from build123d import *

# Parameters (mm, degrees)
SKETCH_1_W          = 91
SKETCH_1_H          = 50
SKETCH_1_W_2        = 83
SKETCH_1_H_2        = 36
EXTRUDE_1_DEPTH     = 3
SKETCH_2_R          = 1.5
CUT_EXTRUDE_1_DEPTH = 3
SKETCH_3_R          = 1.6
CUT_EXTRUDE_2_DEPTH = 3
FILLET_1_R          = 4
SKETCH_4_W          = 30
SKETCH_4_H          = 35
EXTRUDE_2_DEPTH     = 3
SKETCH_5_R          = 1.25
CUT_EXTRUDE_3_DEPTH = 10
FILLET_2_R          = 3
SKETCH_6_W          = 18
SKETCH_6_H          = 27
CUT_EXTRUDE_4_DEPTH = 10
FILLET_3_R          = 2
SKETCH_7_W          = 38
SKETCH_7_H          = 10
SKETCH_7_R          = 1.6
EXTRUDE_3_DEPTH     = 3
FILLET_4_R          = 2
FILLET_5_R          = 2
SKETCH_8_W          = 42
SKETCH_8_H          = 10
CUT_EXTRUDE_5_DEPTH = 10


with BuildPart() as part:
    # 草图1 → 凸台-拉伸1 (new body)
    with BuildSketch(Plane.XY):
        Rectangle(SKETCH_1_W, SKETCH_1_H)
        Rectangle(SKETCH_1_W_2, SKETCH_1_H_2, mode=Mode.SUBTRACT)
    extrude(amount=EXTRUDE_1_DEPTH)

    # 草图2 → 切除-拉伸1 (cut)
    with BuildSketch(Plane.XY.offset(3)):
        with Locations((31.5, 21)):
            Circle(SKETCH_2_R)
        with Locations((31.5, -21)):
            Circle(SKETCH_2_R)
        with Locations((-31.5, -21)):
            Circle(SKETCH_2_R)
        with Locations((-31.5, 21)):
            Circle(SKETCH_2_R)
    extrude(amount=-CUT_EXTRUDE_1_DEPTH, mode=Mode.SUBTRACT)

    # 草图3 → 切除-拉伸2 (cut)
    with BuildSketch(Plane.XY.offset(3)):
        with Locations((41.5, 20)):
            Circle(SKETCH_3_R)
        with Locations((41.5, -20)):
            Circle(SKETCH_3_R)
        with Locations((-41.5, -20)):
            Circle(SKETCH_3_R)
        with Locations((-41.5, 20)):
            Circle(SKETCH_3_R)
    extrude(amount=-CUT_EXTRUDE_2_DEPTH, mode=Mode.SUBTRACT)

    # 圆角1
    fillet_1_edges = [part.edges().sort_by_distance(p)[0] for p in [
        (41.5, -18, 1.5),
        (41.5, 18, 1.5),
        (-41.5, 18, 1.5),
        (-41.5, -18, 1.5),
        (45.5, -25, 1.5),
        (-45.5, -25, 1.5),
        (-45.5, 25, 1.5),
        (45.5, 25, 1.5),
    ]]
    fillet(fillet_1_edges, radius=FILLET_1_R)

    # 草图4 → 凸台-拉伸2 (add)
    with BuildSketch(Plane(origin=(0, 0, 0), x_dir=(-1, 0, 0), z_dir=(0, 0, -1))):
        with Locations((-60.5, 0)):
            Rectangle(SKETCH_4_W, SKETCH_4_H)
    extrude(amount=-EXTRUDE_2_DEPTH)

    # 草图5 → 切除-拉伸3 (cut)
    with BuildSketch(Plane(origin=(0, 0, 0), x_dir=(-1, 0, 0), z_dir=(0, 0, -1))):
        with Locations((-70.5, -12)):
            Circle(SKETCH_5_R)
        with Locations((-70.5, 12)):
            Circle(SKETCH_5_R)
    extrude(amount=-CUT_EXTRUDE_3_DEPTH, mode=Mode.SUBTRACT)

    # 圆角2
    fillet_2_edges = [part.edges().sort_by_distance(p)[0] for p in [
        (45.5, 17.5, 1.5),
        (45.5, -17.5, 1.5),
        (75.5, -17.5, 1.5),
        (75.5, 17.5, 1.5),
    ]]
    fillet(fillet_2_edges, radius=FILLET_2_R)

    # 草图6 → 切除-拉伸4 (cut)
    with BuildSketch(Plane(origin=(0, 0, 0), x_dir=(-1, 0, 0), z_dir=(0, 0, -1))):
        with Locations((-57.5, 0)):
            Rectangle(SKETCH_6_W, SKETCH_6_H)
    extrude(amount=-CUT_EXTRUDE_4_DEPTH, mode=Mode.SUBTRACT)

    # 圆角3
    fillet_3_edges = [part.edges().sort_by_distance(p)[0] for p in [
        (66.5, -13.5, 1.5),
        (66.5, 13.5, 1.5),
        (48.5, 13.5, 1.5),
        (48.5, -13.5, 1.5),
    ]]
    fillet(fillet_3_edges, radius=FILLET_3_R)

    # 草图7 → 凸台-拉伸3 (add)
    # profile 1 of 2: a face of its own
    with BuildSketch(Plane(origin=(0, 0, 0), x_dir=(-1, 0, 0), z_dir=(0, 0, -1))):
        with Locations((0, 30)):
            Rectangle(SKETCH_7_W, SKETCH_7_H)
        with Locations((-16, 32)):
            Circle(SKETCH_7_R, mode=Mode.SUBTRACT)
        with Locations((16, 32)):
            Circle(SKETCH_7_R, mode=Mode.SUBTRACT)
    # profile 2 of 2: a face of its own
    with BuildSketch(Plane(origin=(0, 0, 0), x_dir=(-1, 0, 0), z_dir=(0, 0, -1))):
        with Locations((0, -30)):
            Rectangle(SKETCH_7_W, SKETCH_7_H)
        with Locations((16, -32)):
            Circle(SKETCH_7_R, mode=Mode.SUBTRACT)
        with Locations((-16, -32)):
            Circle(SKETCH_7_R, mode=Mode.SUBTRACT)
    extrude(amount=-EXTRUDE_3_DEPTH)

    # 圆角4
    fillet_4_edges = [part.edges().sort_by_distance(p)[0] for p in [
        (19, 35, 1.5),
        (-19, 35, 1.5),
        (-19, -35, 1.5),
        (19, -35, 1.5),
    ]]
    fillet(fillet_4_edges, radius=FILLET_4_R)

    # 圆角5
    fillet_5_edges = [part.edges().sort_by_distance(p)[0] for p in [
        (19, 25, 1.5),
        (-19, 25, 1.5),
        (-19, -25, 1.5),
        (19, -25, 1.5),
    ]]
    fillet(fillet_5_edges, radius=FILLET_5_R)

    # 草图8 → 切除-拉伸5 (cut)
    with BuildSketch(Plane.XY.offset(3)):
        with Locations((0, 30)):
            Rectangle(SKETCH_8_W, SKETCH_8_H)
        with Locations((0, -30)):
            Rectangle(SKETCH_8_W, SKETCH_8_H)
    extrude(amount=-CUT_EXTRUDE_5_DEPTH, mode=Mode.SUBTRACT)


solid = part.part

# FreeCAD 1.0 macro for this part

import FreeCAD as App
import Part
import Sketcher
from FreeCAD import Vector


def edges_at(feature, points):
    """Names of the edges that pass closest to the given points."""
    edges = feature.Shape.Edges
    near = lambda p: min(range(len(edges)), key=lambda i: edges[i].distToShape(Part.Vertex(*p))[0])
    return sorted({f"Edge{near(p) + 1}" for p in points})

doc = App.newDocument("Part")
body = doc.addObject("PartDesign::Body", "Body")

sketch1 = body.newObject("Sketcher::SketchObject", "Sketch")
sketch1.AttachmentSupport = (doc.getObject("XY_Plane"), [""])
sketch1.MapMode = "FlatFace"
sketch1.addGeometry(Part.LineSegment(Vector(-45.5, 25, 0), Vector(-45.5, -25, 0)), False)
sketch1.addGeometry(Part.LineSegment(Vector(-45.5, -25, 0), Vector(45.5, -25, 0)), False)
sketch1.addGeometry(Part.LineSegment(Vector(45.5, -25, 0), Vector(45.5, 25, 0)), False)
sketch1.addGeometry(Part.LineSegment(Vector(45.5, 25, 0), Vector(-45.5, 25, 0)), False)
sketch1.addGeometry(Part.LineSegment(Vector(41.5, -18, 0), Vector(-41.5, -18, 0)), False)
sketch1.addGeometry(Part.LineSegment(Vector(-41.5, -18, 0), Vector(-41.5, 18, 0)), False)
sketch1.addGeometry(Part.LineSegment(Vector(-41.5, 18, 0), Vector(41.5, 18, 0)), False)
sketch1.addGeometry(Part.LineSegment(Vector(41.5, 18, 0), Vector(41.5, -18, 0)), False)
sketch1.addConstraint(Sketcher.Constraint("Coincident", 0, 2, 1, 1))
sketch1.addConstraint(Sketcher.Constraint("Coincident", 1, 2, 2, 1))
sketch1.addConstraint(Sketcher.Constraint("Coincident", 2, 2, 3, 1))
sketch1.addConstraint(Sketcher.Constraint("Coincident", 3, 2, 0, 1))
sketch1.addConstraint(Sketcher.Constraint("Coincident", 4, 2, 5, 1))
sketch1.addConstraint(Sketcher.Constraint("Coincident", 5, 2, 6, 1))
sketch1.addConstraint(Sketcher.Constraint("Coincident", 6, 2, 7, 1))
sketch1.addConstraint(Sketcher.Constraint("Coincident", 7, 2, 4, 1))
sketch1.addConstraint(Sketcher.Constraint("Vertical", 0))
sketch1.addConstraint(Sketcher.Constraint("Horizontal", 1))
sketch1.addConstraint(Sketcher.Constraint("Vertical", 2))
sketch1.addConstraint(Sketcher.Constraint("Horizontal", 3))
sketch1.addConstraint(Sketcher.Constraint("Horizontal", 4))
sketch1.addConstraint(Sketcher.Constraint("Vertical", 5))
sketch1.addConstraint(Sketcher.Constraint("Horizontal", 6))
sketch1.addConstraint(Sketcher.Constraint("Vertical", 7))
sketch1.addConstraint(Sketcher.Constraint("Symmetric", 0, 2, 2, 2, -1, 1))
sketch1.addConstraint(Sketcher.Constraint("Symmetric", 4, 2, 6, 2, -1, 1))
sketch1.addConstraint(Sketcher.Constraint("DistanceX", 1, 1, 1, 2, 91.0))
sketch1.addConstraint(Sketcher.Constraint("DistanceX", 4, 2, 4, 1, 83.0))
sketch1.addConstraint(Sketcher.Constraint("DistanceY", 0, 2, 0, 1, 50.0))
sketch1.addConstraint(Sketcher.Constraint("DistanceY", 5, 1, 5, 2, 36.0))
pad1 = body.newObject("PartDesign::Pad", "Pad")
pad1.Profile = sketch1
pad1.Length = 3

sketch2 = body.newObject("Sketcher::SketchObject", "Sketch001")
sketch2.AttachmentSupport = (doc.getObject("XY_Plane"), [""])
sketch2.MapMode = "FlatFace"
sketch2.AttachmentOffset = App.Placement(Vector(0, 0, 3), App.Rotation())
sketch2.addGeometry(Part.Circle(Vector(31.5, 21, 0), Vector(0, 0, 1), 1.5), False)
sketch2.addGeometry(Part.Circle(Vector(31.5, -21, 0), Vector(0, 0, 1), 1.5), False)
sketch2.addGeometry(Part.Circle(Vector(-31.5, -21, 0), Vector(0, 0, 1), 1.5), False)
sketch2.addGeometry(Part.Circle(Vector(-31.5, 21, 0), Vector(0, 0, 1), 1.5), False)
sketch2.addConstraint(Sketcher.Constraint("Equal", 0, 1))
sketch2.addConstraint(Sketcher.Constraint("Equal", 1, 2))
sketch2.addConstraint(Sketcher.Constraint("Equal", 2, 3))
sketch2.addConstraint(Sketcher.Constraint("Symmetric", 0, 3, 2, 3, -1, 1))
sketch2.addConstraint(Sketcher.Constraint("Symmetric", 1, 3, 3, 3, -1, 1))
sketch2.addConstraint(Sketcher.Constraint("Symmetric", 1, 3, 2, 3, -2))
sketch2.addConstraint(Sketcher.Constraint("Diameter", 0, 3.0))
sketch2.addConstraint(Sketcher.Constraint("DistanceY", -1, 1, 0, 3, 21.0))
sketch2.addConstraint(Sketcher.Constraint("DistanceX", 2, 3, 1, 3, 63.0))
pocket1 = body.newObject("PartDesign::Pocket", "Pocket")
pocket1.Profile = sketch2
pocket1.Length = 3

sketch3 = body.newObject("Sketcher::SketchObject", "Sketch002")
sketch3.AttachmentSupport = (doc.getObject("XY_Plane"), [""])
sketch3.MapMode = "FlatFace"
sketch3.AttachmentOffset = App.Placement(Vector(0, 0, 3), App.Rotation())
sketch3.addGeometry(Part.Circle(Vector(41.5, 20, 0), Vector(0, 0, 1), 1.6), False)
sketch3.addGeometry(Part.Circle(Vector(41.5, -20, 0), Vector(0, 0, 1), 1.6), False)
sketch3.addGeometry(Part.Circle(Vector(-41.5, -20, 0), Vector(0, 0, 1), 1.6), False)
sketch3.addGeometry(Part.Circle(Vector(-41.5, 20, 0), Vector(0, 0, 1), 1.6), False)
sketch3.addConstraint(Sketcher.Constraint("Equal", 0, 1))
sketch3.addConstraint(Sketcher.Constraint("Equal", 1, 2))
sketch3.addConstraint(Sketcher.Constraint("Equal", 2, 3))
sketch3.addConstraint(Sketcher.Constraint("Symmetric", 0, 3, 2, 3, -1, 1))
sketch3.addConstraint(Sketcher.Constraint("Symmetric", 1, 3, 3, 3, -1, 1))
sketch3.addConstraint(Sketcher.Constraint("Symmetric", 1, 3, 2, 3, -2))
sketch3.addConstraint(Sketcher.Constraint("Diameter", 0, 3.2))
sketch3.addConstraint(Sketcher.Constraint("DistanceY", -1, 1, 0, 3, 20.0))
sketch3.addConstraint(Sketcher.Constraint("DistanceX", 2, 3, 1, 3, 83.0))
pocket2 = body.newObject("PartDesign::Pocket", "Pocket001")
pocket2.Profile = sketch3
pocket2.Length = 3
doc.recompute()

fillet = body.newObject("PartDesign::Fillet", "Fillet")
fillet.Base = (pocket2, edges_at(pocket2, [
    (41.5, -18, 1.5),
    (41.5, 18, 1.5),
    (-41.5, 18, 1.5),
    (-41.5, -18, 1.5),
    (45.5, -25, 1.5),
    (-45.5, -25, 1.5),
    (-45.5, 25, 1.5),
    (45.5, 25, 1.5),
]))
fillet.Radius = 4

sketch4 = body.newObject("Sketcher::SketchObject", "Sketch003")
sketch4.AttachmentSupport = (doc.getObject("XY_Plane"), [""])
sketch4.MapMode = "FlatFace"
sketch4.addGeometry(Part.LineSegment(Vector(75.5, 17.5, 0), Vector(75.5, -17.5, 0)), False)
sketch4.addGeometry(Part.LineSegment(Vector(75.5, -17.5, 0), Vector(45.5, -17.5, 0)), False)
sketch4.addGeometry(Part.LineSegment(Vector(45.5, -17.5, 0), Vector(45.5, 17.5, 0)), False)
sketch4.addGeometry(Part.LineSegment(Vector(45.5, 17.5, 0), Vector(75.5, 17.5, 0)), False)
sketch4.addConstraint(Sketcher.Constraint("Coincident", 0, 2, 1, 1))
sketch4.addConstraint(Sketcher.Constraint("Coincident", 1, 2, 2, 1))
sketch4.addConstraint(Sketcher.Constraint("Coincident", 2, 2, 3, 1))
sketch4.addConstraint(Sketcher.Constraint("Coincident", 3, 2, 0, 1))
sketch4.addConstraint(Sketcher.Constraint("Vertical", 0))
sketch4.addConstraint(Sketcher.Constraint("Horizontal", 1))
sketch4.addConstraint(Sketcher.Constraint("Vertical", 2))
sketch4.addConstraint(Sketcher.Constraint("Horizontal", 3))
sketch4.addConstraint(Sketcher.Constraint("DistanceX", 1, 2, 1, 1, 30.0))
sketch4.addConstraint(Sketcher.Constraint("DistanceY", 0, 2, 0, 1, 35.0))
sketch4.addConstraint(Sketcher.Constraint("DistanceX", -1, 1, 0, 2, 75.5))
sketch4.addConstraint(Sketcher.Constraint("DistanceY", 0, 2, -1, 1, 17.5))
pad2 = body.newObject("PartDesign::Pad", "Pad001")
pad2.Profile = sketch4
pad2.Length = 3

sketch5 = body.newObject("Sketcher::SketchObject", "Sketch004")
sketch5.AttachmentSupport = (doc.getObject("XY_Plane"), [""])
sketch5.MapMode = "FlatFace"
sketch5.addGeometry(Part.Circle(Vector(70.5, -12, 0), Vector(0, 0, 1), 1.25), False)
sketch5.addGeometry(Part.Circle(Vector(70.5, 12, 0), Vector(0, 0, 1), 1.25), False)
sketch5.addConstraint(Sketcher.Constraint("Equal", 0, 1))
sketch5.addConstraint(Sketcher.Constraint("Symmetric", 0, 3, 1, 3, -1))
sketch5.addConstraint(Sketcher.Constraint("Diameter", 0, 2.5))
sketch5.addConstraint(Sketcher.Constraint("DistanceY", 0, 3, -1, 1, 12.0))
sketch5.addConstraint(Sketcher.Constraint("DistanceX", -1, 1, 0, 3, 70.5))
pocket3 = body.newObject("PartDesign::Pocket", "Pocket002")
pocket3.Profile = sketch5
pocket3.Length = 10
pocket3.Reversed = True
doc.recompute()

fillet2 = body.newObject("PartDesign::Fillet", "Fillet001")
fillet2.Base = (pocket3, edges_at(pocket3, [
    (45.5, 17.5, 1.5),
    (45.5, -17.5, 1.5),
    (75.5, -17.5, 1.5),
    (75.5, 17.5, 1.5),
]))
fillet2.Radius = 3

sketch6 = body.newObject("Sketcher::SketchObject", "Sketch005")
sketch6.AttachmentSupport = (doc.getObject("XY_Plane"), [""])
sketch6.MapMode = "FlatFace"
sketch6.addGeometry(Part.LineSegment(Vector(66.5, 13.5, 0), Vector(66.5, -13.5, 0)), False)
sketch6.addGeometry(Part.LineSegment(Vector(66.5, -13.5, 0), Vector(48.5, -13.5, 0)), False)
sketch6.addGeometry(Part.LineSegment(Vector(48.5, -13.5, 0), Vector(48.5, 13.5, 0)), False)
sketch6.addGeometry(Part.LineSegment(Vector(48.5, 13.5, 0), Vector(66.5, 13.5, 0)), False)
sketch6.addConstraint(Sketcher.Constraint("Coincident", 0, 2, 1, 1))
sketch6.addConstraint(Sketcher.Constraint("Coincident", 1, 2, 2, 1))
sketch6.addConstraint(Sketcher.Constraint("Coincident", 2, 2, 3, 1))
sketch6.addConstraint(Sketcher.Constraint("Coincident", 3, 2, 0, 1))
sketch6.addConstraint(Sketcher.Constraint("Vertical", 0))
sketch6.addConstraint(Sketcher.Constraint("Horizontal", 1))
sketch6.addConstraint(Sketcher.Constraint("Vertical", 2))
sketch6.addConstraint(Sketcher.Constraint("Horizontal", 3))
sketch6.addConstraint(Sketcher.Constraint("DistanceX", 1, 2, 1, 1, 18.0))
sketch6.addConstraint(Sketcher.Constraint("DistanceY", 0, 2, 0, 1, 27.0))
sketch6.addConstraint(Sketcher.Constraint("DistanceX", -1, 1, 0, 2, 66.5))
sketch6.addConstraint(Sketcher.Constraint("DistanceY", 0, 2, -1, 1, 13.5))
pocket4 = body.newObject("PartDesign::Pocket", "Pocket003")
pocket4.Profile = sketch6
pocket4.Length = 10
pocket4.Reversed = True
doc.recompute()

fillet3 = body.newObject("PartDesign::Fillet", "Fillet002")
fillet3.Base = (pocket4, edges_at(pocket4, [
    (66.5, -13.5, 1.5),
    (66.5, 13.5, 1.5),
    (48.5, 13.5, 1.5),
    (48.5, -13.5, 1.5),
]))
fillet3.Radius = 2

sketch7 = body.newObject("Sketcher::SketchObject", "Sketch006")
sketch7.AttachmentSupport = (doc.getObject("XY_Plane"), [""])
sketch7.MapMode = "FlatFace"
sketch7.addGeometry(Part.LineSegment(Vector(19, 35, 0), Vector(19, 25, 0)), False)
sketch7.addGeometry(Part.LineSegment(Vector(19, 25, 0), Vector(-19, 25, 0)), False)
sketch7.addGeometry(Part.LineSegment(Vector(-19, 25, 0), Vector(-19, 35, 0)), False)
sketch7.addGeometry(Part.LineSegment(Vector(-19, 35, 0), Vector(19, 35, 0)), False)
sketch7.addGeometry(Part.Circle(Vector(16, 32, 0), Vector(0, 0, 1), 1.6), False)
sketch7.addGeometry(Part.Circle(Vector(-16, 32, 0), Vector(0, 0, 1), 1.6), False)
sketch7.addGeometry(Part.LineSegment(Vector(19, -25, 0), Vector(19, -35, 0)), False)
sketch7.addGeometry(Part.LineSegment(Vector(19, -35, 0), Vector(-19, -35, 0)), False)
sketch7.addGeometry(Part.LineSegment(Vector(-19, -35, 0), Vector(-19, -25, 0)), False)
sketch7.addGeometry(Part.LineSegment(Vector(-19, -25, 0), Vector(19, -25, 0)), False)
sketch7.addGeometry(Part.Circle(Vector(16, -32, 0), Vector(0, 0, 1), 1.6), False)
sketch7.addGeometry(Part.Circle(Vector(-16, -32, 0), Vector(0, 0, 1), 1.6), False)
sketch7.addConstraint(Sketcher.Constraint("Coincident", 0, 2, 1, 1))
sketch7.addConstraint(Sketcher.Constraint("Coincident", 1, 2, 2, 1))
sketch7.addConstraint(Sketcher.Constraint("Coincident", 2, 2, 3, 1))
sketch7.addConstraint(Sketcher.Constraint("Coincident", 3, 2, 0, 1))
sketch7.addConstraint(Sketcher.Constraint("Coincident", 6, 2, 7, 1))
sketch7.addConstraint(Sketcher.Constraint("Coincident", 7, 2, 8, 1))
sketch7.addConstraint(Sketcher.Constraint("Coincident", 8, 2, 9, 1))
sketch7.addConstraint(Sketcher.Constraint("Coincident", 9, 2, 6, 1))
sketch7.addConstraint(Sketcher.Constraint("Vertical", 0))
sketch7.addConstraint(Sketcher.Constraint("Horizontal", 1))
sketch7.addConstraint(Sketcher.Constraint("Vertical", 2))
sketch7.addConstraint(Sketcher.Constraint("Horizontal", 3))
sketch7.addConstraint(Sketcher.Constraint("Vertical", 6))
sketch7.addConstraint(Sketcher.Constraint("Horizontal", 7))
sketch7.addConstraint(Sketcher.Constraint("Vertical", 8))
sketch7.addConstraint(Sketcher.Constraint("Horizontal", 9))
sketch7.addConstraint(Sketcher.Constraint("Equal", 4, 5))
sketch7.addConstraint(Sketcher.Constraint("Equal", 5, 10))
sketch7.addConstraint(Sketcher.Constraint("Equal", 10, 11))
sketch7.addConstraint(Sketcher.Constraint("Symmetric", 5, 3, 10, 3, -1, 1))
sketch7.addConstraint(Sketcher.Constraint("Symmetric", 4, 3, 11, 3, -1, 1))
sketch7.addConstraint(Sketcher.Constraint("Symmetric", 2, 2, 6, 2, -1, 1))
sketch7.addConstraint(Sketcher.Constraint("Symmetric", 0, 2, 8, 2, -1, 1))
sketch7.addConstraint(Sketcher.Constraint("Symmetric", 4, 3, 5, 3, -2))
sketch7.addConstraint(Sketcher.Constraint("Vertical", 3, 2, 6, 2))
sketch7.addConstraint(Sketcher.Constraint("Diameter", 4, 3.2))
sketch7.addConstraint(Sketcher.Constraint("DistanceX", 1, 2, 1, 1, 38.0))
sketch7.addConstraint(Sketcher.Constraint("DistanceY", 0, 2, 0, 1, 10.0))
sketch7.addConstraint(Sketcher.Constraint("DistanceX", -1, 1, 4, 3, 16.0))
sketch7.addConstraint(Sketcher.Constraint("DistanceY", -1, 1, 4, 3, 32.0))
sketch7.addConstraint(Sketcher.Constraint("DistanceY", -1, 1, 0, 2, 25.0))
pad3 = body.newObject("PartDesign::Pad", "Pad002")
pad3.Profile = sketch7
pad3.Length = 3
doc.recompute()

fillet4 = body.newObject("PartDesign::Fillet", "Fillet003")
fillet4.Base = (pad3, edges_at(pad3, [
    (19, 35, 1.5),
    (-19, 35, 1.5),
    (-19, -35, 1.5),
    (19, -35, 1.5),
]))
fillet4.Radius = 2
doc.recompute()

fillet5 = body.newObject("PartDesign::Fillet", "Fillet004")
fillet5.Base = (fillet4, edges_at(fillet4, [
    (19, 25, 1.5),
    (-19, 25, 1.5),
    (-19, -25, 1.5),
    (19, -25, 1.5),
]))
fillet5.Radius = 2

sketch8 = body.newObject("Sketcher::SketchObject", "Sketch007")
sketch8.AttachmentSupport = (doc.getObject("XY_Plane"), [""])
sketch8.MapMode = "FlatFace"
sketch8.AttachmentOffset = App.Placement(Vector(0, 0, 3), App.Rotation())
sketch8.addGeometry(Part.LineSegment(Vector(-21, 35, 0), Vector(-21, 25, 0)), False)
sketch8.addGeometry(Part.LineSegment(Vector(-21, 25, 0), Vector(21, 25, 0)), False)
sketch8.addGeometry(Part.LineSegment(Vector(21, 25, 0), Vector(21, 35, 0)), False)
sketch8.addGeometry(Part.LineSegment(Vector(21, 35, 0), Vector(-21, 35, 0)), False)
sketch8.addGeometry(Part.LineSegment(Vector(-21, -25, 0), Vector(-21, -35, 0)), False)
sketch8.addGeometry(Part.LineSegment(Vector(-21, -35, 0), Vector(21, -35, 0)), False)
sketch8.addGeometry(Part.LineSegment(Vector(21, -35, 0), Vector(21, -25, 0)), False)
sketch8.addGeometry(Part.LineSegment(Vector(21, -25, 0), Vector(-21, -25, 0)), False)
sketch8.addConstraint(Sketcher.Constraint("Coincident", 0, 2, 1, 1))
sketch8.addConstraint(Sketcher.Constraint("Coincident", 1, 2, 2, 1))
sketch8.addConstraint(Sketcher.Constraint("Coincident", 2, 2, 3, 1))
sketch8.addConstraint(Sketcher.Constraint("Coincident", 3, 2, 0, 1))
sketch8.addConstraint(Sketcher.Constraint("Coincident", 4, 2, 5, 1))
sketch8.addConstraint(Sketcher.Constraint("Coincident", 5, 2, 6, 1))
sketch8.addConstraint(Sketcher.Constraint("Coincident", 6, 2, 7, 1))
sketch8.addConstraint(Sketcher.Constraint("Coincident", 7, 2, 4, 1))
sketch8.addConstraint(Sketcher.Constraint("Vertical", 0))
sketch8.addConstraint(Sketcher.Constraint("Horizontal", 1))
sketch8.addConstraint(Sketcher.Constraint("Vertical", 2))
sketch8.addConstraint(Sketcher.Constraint("Horizontal", 3))
sketch8.addConstraint(Sketcher.Constraint("Vertical", 4))
sketch8.addConstraint(Sketcher.Constraint("Horizontal", 5))
sketch8.addConstraint(Sketcher.Constraint("Vertical", 6))
sketch8.addConstraint(Sketcher.Constraint("Horizontal", 7))
sketch8.addConstraint(Sketcher.Constraint("Symmetric", 2, 2, 4, 2, -1, 1))
sketch8.addConstraint(Sketcher.Constraint("Symmetric", 0, 2, 6, 2, -1, 1))
sketch8.addConstraint(Sketcher.Constraint("Vertical", 3, 2, 4, 2))
sketch8.addConstraint(Sketcher.Constraint("DistanceX", 1, 1, 1, 2, 42.0))
sketch8.addConstraint(Sketcher.Constraint("DistanceY", 0, 2, 0, 1, 10.0))
sketch8.addConstraint(Sketcher.Constraint("DistanceY", -1, 1, 0, 2, 25.0))
pocket5 = body.newObject("PartDesign::Pocket", "Pocket004")
pocket5.Profile = sketch8
pocket5.Length = 10

doc.recompute()
